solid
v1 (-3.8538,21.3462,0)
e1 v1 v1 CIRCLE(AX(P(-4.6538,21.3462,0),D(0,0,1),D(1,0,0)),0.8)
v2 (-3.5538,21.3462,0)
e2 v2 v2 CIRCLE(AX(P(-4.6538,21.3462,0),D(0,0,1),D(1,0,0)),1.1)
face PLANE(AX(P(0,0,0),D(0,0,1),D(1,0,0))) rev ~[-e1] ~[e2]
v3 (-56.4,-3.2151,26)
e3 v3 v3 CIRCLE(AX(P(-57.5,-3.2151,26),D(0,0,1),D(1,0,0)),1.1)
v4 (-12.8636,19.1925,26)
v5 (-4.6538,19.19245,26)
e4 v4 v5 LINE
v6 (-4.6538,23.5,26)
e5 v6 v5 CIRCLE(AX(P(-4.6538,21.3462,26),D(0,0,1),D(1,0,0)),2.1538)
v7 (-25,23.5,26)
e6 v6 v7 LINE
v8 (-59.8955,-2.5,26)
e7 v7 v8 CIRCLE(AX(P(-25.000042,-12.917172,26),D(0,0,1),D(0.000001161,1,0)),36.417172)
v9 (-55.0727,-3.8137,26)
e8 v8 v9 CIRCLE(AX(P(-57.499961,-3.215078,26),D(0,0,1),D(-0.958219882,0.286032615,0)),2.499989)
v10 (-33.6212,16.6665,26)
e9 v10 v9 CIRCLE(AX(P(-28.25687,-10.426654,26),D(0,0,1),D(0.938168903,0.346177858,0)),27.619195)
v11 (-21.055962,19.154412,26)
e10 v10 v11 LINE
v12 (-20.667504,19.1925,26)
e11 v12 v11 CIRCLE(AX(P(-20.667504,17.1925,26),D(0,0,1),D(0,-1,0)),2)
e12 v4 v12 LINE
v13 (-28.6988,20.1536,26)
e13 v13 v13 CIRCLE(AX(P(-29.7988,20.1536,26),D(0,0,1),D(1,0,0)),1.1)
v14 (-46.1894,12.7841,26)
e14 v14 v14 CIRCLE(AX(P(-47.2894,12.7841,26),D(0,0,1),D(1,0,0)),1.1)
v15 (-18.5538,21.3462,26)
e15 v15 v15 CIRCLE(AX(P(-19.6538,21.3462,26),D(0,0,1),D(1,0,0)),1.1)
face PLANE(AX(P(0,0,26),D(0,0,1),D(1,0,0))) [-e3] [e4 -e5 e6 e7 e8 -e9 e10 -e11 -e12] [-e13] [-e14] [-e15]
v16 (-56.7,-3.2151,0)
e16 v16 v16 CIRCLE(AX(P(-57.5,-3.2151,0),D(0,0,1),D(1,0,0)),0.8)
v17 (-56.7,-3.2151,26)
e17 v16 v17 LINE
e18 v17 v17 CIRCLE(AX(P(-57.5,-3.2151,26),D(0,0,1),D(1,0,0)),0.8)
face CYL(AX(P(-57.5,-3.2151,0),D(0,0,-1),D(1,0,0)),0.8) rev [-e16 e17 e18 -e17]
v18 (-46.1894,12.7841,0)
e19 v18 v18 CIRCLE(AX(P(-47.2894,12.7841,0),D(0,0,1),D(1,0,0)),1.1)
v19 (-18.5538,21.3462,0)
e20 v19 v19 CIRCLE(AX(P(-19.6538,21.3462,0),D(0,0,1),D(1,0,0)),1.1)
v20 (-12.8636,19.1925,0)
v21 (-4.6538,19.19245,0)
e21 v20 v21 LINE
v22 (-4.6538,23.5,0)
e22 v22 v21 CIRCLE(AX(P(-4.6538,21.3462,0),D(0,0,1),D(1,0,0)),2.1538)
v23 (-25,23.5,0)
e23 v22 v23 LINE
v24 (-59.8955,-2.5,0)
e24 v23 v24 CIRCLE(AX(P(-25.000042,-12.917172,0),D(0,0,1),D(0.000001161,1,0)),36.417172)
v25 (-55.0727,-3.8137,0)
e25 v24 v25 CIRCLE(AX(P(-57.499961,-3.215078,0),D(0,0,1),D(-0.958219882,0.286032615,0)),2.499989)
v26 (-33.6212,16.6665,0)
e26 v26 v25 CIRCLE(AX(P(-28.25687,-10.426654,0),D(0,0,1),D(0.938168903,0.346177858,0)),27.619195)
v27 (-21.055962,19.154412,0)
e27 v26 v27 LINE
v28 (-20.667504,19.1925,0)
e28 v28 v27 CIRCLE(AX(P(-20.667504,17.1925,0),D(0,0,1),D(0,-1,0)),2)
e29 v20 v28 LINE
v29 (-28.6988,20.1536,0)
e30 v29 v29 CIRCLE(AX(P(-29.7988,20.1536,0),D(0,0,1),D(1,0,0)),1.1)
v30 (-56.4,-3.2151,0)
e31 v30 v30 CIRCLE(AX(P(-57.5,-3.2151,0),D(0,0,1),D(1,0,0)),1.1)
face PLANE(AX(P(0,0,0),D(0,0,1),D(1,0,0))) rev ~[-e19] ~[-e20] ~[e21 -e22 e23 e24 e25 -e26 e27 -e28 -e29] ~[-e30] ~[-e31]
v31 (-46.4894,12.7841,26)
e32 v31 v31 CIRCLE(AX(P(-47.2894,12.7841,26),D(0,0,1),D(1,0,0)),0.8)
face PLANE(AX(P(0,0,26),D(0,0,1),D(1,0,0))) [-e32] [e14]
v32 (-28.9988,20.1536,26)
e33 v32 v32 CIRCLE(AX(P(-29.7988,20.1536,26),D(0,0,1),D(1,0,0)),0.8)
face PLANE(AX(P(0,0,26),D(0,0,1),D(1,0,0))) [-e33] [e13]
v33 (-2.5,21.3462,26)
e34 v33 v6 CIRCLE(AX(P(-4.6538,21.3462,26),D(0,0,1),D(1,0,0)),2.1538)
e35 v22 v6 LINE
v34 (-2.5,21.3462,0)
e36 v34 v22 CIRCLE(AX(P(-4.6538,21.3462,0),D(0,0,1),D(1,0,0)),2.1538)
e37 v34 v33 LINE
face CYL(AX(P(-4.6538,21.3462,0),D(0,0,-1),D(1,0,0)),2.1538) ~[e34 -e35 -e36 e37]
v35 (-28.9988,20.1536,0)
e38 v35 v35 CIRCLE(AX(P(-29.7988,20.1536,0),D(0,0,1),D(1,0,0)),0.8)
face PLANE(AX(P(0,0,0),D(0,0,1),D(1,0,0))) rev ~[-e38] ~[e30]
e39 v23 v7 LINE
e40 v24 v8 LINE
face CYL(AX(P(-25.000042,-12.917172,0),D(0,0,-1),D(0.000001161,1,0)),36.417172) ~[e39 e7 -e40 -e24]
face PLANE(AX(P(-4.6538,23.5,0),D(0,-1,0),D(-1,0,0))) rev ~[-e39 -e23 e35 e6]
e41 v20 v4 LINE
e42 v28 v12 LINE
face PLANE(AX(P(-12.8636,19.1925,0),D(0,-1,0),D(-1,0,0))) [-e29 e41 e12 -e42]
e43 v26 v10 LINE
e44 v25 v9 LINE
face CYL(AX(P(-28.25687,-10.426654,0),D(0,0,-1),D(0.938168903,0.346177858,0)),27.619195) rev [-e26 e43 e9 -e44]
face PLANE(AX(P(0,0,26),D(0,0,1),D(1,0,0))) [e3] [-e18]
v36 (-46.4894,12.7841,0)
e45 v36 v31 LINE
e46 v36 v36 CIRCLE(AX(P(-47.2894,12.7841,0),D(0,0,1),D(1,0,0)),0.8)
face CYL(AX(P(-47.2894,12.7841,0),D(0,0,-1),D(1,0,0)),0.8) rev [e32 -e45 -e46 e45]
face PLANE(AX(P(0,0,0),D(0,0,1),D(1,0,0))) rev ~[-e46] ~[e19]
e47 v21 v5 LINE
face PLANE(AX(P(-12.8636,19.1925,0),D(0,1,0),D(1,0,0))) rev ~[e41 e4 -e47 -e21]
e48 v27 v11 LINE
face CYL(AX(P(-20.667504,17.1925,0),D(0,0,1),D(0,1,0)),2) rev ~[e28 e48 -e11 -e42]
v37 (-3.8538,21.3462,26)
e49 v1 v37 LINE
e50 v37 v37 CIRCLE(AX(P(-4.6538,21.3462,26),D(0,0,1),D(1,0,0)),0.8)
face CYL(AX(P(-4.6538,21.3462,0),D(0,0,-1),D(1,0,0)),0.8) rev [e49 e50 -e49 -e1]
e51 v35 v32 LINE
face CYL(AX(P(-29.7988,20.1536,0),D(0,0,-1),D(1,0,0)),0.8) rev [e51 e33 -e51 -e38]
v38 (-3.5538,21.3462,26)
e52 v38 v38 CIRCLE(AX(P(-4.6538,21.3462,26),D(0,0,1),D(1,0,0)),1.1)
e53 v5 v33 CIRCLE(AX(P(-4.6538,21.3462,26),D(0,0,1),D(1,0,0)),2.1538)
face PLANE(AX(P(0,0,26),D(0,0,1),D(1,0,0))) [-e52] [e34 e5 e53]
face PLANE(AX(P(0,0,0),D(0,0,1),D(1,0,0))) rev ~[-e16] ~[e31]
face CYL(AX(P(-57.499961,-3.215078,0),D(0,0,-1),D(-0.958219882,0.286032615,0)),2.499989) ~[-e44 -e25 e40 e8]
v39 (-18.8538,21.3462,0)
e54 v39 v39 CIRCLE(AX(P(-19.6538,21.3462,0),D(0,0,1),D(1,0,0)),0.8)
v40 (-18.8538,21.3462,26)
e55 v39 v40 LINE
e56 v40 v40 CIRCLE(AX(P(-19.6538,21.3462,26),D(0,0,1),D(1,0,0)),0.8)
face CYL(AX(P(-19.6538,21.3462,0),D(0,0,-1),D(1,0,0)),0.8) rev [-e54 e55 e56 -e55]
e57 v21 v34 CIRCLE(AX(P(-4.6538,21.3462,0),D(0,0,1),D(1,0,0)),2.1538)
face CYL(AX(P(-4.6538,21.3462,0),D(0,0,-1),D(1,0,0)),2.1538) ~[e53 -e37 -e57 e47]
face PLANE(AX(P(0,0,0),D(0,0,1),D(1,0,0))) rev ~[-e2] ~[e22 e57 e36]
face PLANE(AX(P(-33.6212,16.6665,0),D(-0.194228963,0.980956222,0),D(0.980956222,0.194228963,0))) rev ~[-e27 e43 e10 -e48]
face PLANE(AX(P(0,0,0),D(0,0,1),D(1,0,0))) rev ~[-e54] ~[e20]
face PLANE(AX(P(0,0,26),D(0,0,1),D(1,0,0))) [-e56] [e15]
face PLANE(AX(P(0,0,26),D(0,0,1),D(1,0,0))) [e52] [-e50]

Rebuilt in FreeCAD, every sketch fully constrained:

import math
import FreeCAD as App
import Part
import Sketcher

V = App.Vector
Q = App.Units.Quantity


def edges_at(feature, points):
    """Names of the edges that pass closest to the given points."""
    edges = feature.Shape.Edges
    near = lambda p: min(range(len(edges)), key=lambda i: edges[i].distToShape(Part.Vertex(*p))[0])
    return sorted({f"Edge{near(p) + 1}" for p in points})

doc = App.newDocument("Part")
body = doc.addObject("PartDesign::Body", "Body")

# Sketch on XY plane
sketch1 = body.newObject("Sketcher::SketchObject", "Sketch")
sketch1.AttachmentSupport = (doc.getObject("XY_Plane"), [""])
sketch1.MapMode = "FlatFace"
sketch1.addGeometry(Part.LineSegment(V(-4.6538, 23.5, 0), V(-25, 23.5, 0)), False)
sketch1.addGeometry(Part.ArcOfCircle(Part.Circle(V(-25, -12.9173, 0), V(0, 0, 1), 36.4173), math.radians(90), math.radians(163.378138)), False)
sketch1.addGeometry(Part.ArcOfCircle(Part.Circle(V(-57.5, -3.2151, 0), V(0, 0, 1), 2.499958), math.radians(163.378686), math.radians(346.14663)), False)
sketch1.addGeometry(Part.ArcOfCircle(Part.Circle(V(-28.2569, -10.4267, 0), V(0, 0, 1), 27.619239), math.radians(101.199393), math.radians(166.146799)), False)
sketch1.addGeometry(Part.LineSegment(V(-33.6212, 16.6665, 0), V(-20.8636, 19.1925, 0)), False)
sketch1.addGeometry(Part.LineSegment(V(-20.8636, 19.1925, 0), V(-4.6538, 19.19245, 0)), False)
sketch1.addGeometry(Part.ArcOfCircle(Part.Circle(V(-4.6538, 21.3462, 0), V(0, 0, 1), 2.1538), math.radians(-90), math.radians(90)), False)
sketch1.addGeometry(Part.Circle(V(-4.6538, 21.3462, 0), V(0, 0, 1), 0.8), False)
sketch1.addGeometry(Part.Circle(V(-19.6538, 21.3462, 0), V(0, 0, 1), 0.8), False)
sketch1.addGeometry(Part.Circle(V(-57.5, -3.2151, 0), V(0, 0, 1), 0.8), False)
sketch1.addGeometry(Part.Circle(V(-47.2894, 12.7841, 0), V(0, 0, 1), 0.8), False)
sketch1.addGeometry(Part.Circle(V(-29.7988, 20.1536, 0), V(0, 0, 1), 0.8), False)
sketch1.addConstraint(Sketcher.Constraint("Tangent", 0, 2, 1, 1))
sketch1.addConstraint(Sketcher.Constraint("Tangent", 1, 2, 2, 1))
sketch1.addConstraint(Sketcher.Constraint("Tangent", 2, 2, 3, 2))
sketch1.addConstraint(Sketcher.Constraint("Tangent", 3, 1, 4, 1))
sketch1.addConstraint(Sketcher.Constraint("Coincident", 4, 2, 5, 1))
sketch1.addConstraint(Sketcher.Constraint("Tangent", 5, 2, 6, 1))
sketch1.addConstraint(Sketcher.Constraint("Tangent", 6, 2, 0, 1))
sketch1.addConstraint(Sketcher.Constraint("Horizontal", 0))
sketch1.addConstraint(Sketcher.Constraint("Horizontal", 5))
sketch1.addConstraint(Sketcher.Constraint("Coincident", 7, 3, 6, 3))
sketch1.addConstraint(Sketcher.Constraint("Coincident", 9, 3, 2, 3))
sketch1.addConstraint(Sketcher.Constraint("Equal", 7, 8))
sketch1.addConstraint(Sketcher.Constraint("Equal", 8, 9))
sketch1.addConstraint(Sketcher.Constraint("Equal", 9, 10))
sketch1.addConstraint(Sketcher.Constraint("Equal", 10, 11))
sketch1.addConstraint(Sketcher.Constraint("Horizontal", 7, 3, 8, 3))
sketch1.addConstraint(Sketcher.Constraint("Diameter", 7, Q("1.6 mm")))
sketch1.addConstraint(Sketcher.Constraint("Radius", 2, Q("2.5 mm")))
sketch1.addConstraint(Sketcher.Constraint("DistanceX", 1, 3, -1, 1, Q("25 mm")))
sketch1.addConstraint(Sketcher.Constraint("Angle", 4, Q("11.1997 deg")))
sketch1.addConstraint(Sketcher.Constraint("DistanceX", 8, 3, 6, 3, Q("15 mm")))
sketch1.addConstraint(Sketcher.Constraint("DistanceX", 2, 3, -1, 1, Q("57.5 mm")))
sketch1.addConstraint(Sketcher.Constraint("DistanceY", -1, 1, 0, 2, Q("23.5 mm")))
sketch1.addConstraint(Sketcher.Constraint("DistanceY", 1, 2, -1, 1, Q("2.5 mm")))
sketch1.addConstraint(Sketcher.Constraint("Radius", 3, Q("27.6192 mm")))
sketch1.addConstraint(Sketcher.Constraint("Radius", 6, Q("2.1538 mm")))
sketch1.addConstraint(Sketcher.Constraint("DistanceX", 0, 2, 0, 1, Q("20.3462 mm")))
sketch1.addConstraint(Sketcher.Constraint("DistanceX", 5, 1, 5, 2, Q("16.2098 mm")))
sketch1.addConstraint(Sketcher.Constraint("DistanceY", -1, 1, 10, 3, Q("12.784 mm")))
sketch1.addConstraint(Sketcher.Constraint("DistanceX", 11, 3, 8, 3, Q("10.145 mm")))
sketch1.addConstraint(Sketcher.Constraint("DistanceY", 3, 1, 11, 3, Q("3.487 mm")))
sketch1.addConstraint(Sketcher.Constraint("DistanceX", 10, 3, -1, 1, Q("47.2894 mm")))
pad1 = body.newObject("PartDesign::Pad", "Pad")
pad1.Profile = sketch1
pad1.Length = 26
doc.recompute()

fillet = body.newObject("PartDesign::Fillet", "Fillet")
fillet.Base = (pad1, edges_at(pad1, [(-20.864, 19.192, 13)]))
fillet.Radius = 2

doc.recompute()
